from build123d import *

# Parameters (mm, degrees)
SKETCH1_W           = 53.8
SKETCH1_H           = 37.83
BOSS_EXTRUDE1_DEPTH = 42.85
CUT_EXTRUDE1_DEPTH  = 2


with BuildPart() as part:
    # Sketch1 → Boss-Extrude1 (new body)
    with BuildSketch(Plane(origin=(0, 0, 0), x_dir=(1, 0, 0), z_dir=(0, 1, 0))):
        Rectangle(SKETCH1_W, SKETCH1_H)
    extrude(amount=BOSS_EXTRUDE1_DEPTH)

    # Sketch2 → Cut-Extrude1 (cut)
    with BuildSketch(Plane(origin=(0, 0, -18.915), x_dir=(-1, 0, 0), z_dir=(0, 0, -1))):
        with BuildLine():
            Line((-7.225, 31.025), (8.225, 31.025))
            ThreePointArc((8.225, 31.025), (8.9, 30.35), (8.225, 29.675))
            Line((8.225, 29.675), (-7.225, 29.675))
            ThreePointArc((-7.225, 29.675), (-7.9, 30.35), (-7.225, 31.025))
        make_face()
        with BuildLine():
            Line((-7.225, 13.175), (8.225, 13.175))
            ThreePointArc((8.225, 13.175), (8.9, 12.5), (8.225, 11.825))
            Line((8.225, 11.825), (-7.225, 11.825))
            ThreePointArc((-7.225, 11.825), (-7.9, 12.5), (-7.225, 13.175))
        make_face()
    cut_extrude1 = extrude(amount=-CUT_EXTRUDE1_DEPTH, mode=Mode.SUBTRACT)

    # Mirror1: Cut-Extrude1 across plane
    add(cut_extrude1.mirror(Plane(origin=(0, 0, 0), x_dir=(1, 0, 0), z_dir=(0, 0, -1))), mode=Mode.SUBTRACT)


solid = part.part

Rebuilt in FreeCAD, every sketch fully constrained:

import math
import FreeCAD as App
import Part
import Sketcher

V = App.Vector

doc = App.newDocument("Part")
body = doc.addObject("PartDesign::Body", "Body")

sketch1 = body.newObject("Sketcher::SketchObject", "Sketch")
sketch1.AttachmentSupport = (doc.getObject("XZ_Plane"), [""])
sketch1.MapMode = "FlatFace"
sketch1.addGeometry(Part.LineSegment(V(-27, -19, 0), V(-27, 19, 0)), False)
sketch1.addGeometry(Part.LineSegment(V(-27, 19, 0), V(27, 19, 0)), False)
sketch1.addGeometry(Part.LineSegment(V(27, 19, 0), V(27, -19, 0)), False)
sketch1.addGeometry(Part.LineSegment(V(27, -19, 0), V(-27, -19, 0)), False)
sketch1.addConstraint(Sketcher.Constraint("Coincident", 0, 2, 1, 1))
sketch1.addConstraint(Sketcher.Constraint("Coincident", 1, 2, 2, 1))
sketch1.addConstraint(Sketcher.Constraint("Coincident", 2, 2, 3, 1))
sketch1.addConstraint(Sketcher.Constraint("Coincident", 3, 2, 0, 1))
sketch1.addConstraint(Sketcher.Constraint("Vertical", 0))
sketch1.addConstraint(Sketcher.Constraint("Horizontal", 1))
sketch1.addConstraint(Sketcher.Constraint("Vertical", 2))
sketch1.addConstraint(Sketcher.Constraint("Horizontal", 3))
sketch1.addConstraint(Sketcher.Constraint("Symmetric", 0, 2, 2, 2, -1, 1))
sketch1.addConstraint(Sketcher.Constraint("DistanceX", 1, 1, 1, 2, 53.8))
sketch1.addConstraint(Sketcher.Constraint("DistanceY", 0, 1, 0, 2, 37.83))
pad1 = body.newObject("PartDesign::Pad", "Pad")
pad1.Profile = sketch1
pad1.Length = 42.85
pad1.Reversed = True

sketch2 = body.newObject("Sketcher::SketchObject", "Sketch001")
sketch2.AttachmentSupport = (doc.getObject("XY_Plane"), [""])
sketch2.MapMode = "FlatFace"
sketch2.AttachmentOffset = App.Placement(V(0, 0, -18.915), App.Rotation())
sketch2.addGeometry(Part.LineSegment(V(-8.2, 31, 0), V(7.2, 31, 0)), False)
sketch2.addGeometry(Part.ArcOfCircle(Part.Circle(V(7.2, 30.4, 0), V(0, 0, 1), 0.7), math.radians(-90), math.radians(90)), False)
sketch2.addGeometry(Part.LineSegment(V(7.2, 29.7, 0), V(-8.2, 29.7, 0)), False)
sketch2.addGeometry(Part.ArcOfCircle(Part.Circle(V(-8.2, 30.4, 0), V(0, 0, 1), 0.7), math.radians(90), math.radians(270)), False)
sketch2.addGeometry(Part.LineSegment(V(-8.2, 13.2, 0), V(7.2, 13.2, 0)), False)
sketch2.addGeometry(Part.ArcOfCircle(Part.Circle(V(7.2, 12.5, 0), V(0, 0, 1), 0.7), math.radians(-90), math.radians(90)), False)
sketch2.addGeometry(Part.LineSegment(V(7.2, 11.8, 0), V(-8.2, 11.8, 0)), False)
sketch2.addGeometry(Part.ArcOfCircle(Part.Circle(V(-8.2, 12.5, 0), V(0, 0, 1), 0.7), math.radians(90), math.radians(270)), False)
sketch2.addConstraint(Sketcher.Constraint("Tangent", 0, 2, 1, 2))
sketch2.addConstraint(Sketcher.Constraint("Tangent", 1, 1, 2, 1))
sketch2.addConstraint(Sketcher.Constraint("Tangent", 2, 2, 3, 2))
sketch2.addConstraint(Sketcher.Constraint("Tangent", 3, 1, 0, 1))
sketch2.addConstraint(Sketcher.Constraint("Tangent", 4, 2, 5, 2))
sketch2.addConstraint(Sketcher.Constraint("Tangent", 5, 1, 6, 1))
sketch2.addConstraint(Sketcher.Constraint("Tangent", 6, 2, 7, 2))
sketch2.addConstraint(Sketcher.Constraint("Tangent", 7, 1, 4, 1))
sketch2.addConstraint(Sketcher.Constraint("Horizontal", 0))
sketch2.addConstraint(Sketcher.Constraint("Horizontal", 2))
sketch2.addConstraint(Sketcher.Constraint("Horizontal", 4))
sketch2.addConstraint(Sketcher.Constraint("Horizontal", 6))
sketch2.addConstraint(Sketcher.Constraint("Equal", 3, 5))
sketch2.addConstraint(Sketcher.Constraint("Vertical", 1, 3, 5, 3))
sketch2.addConstraint(Sketcher.Constraint("Vertical", 3, 3, 7, 3))
sketch2.addConstraint(Sketcher.Constraint("Radius", 1, 0.675))
sketch2.addConstraint(Sketcher.Constraint("DistanceX", 0, 1, 0, 2, 15.45))
sketch2.addConstraint(Sketcher.Constraint("DistanceY", -1, 1, 5, 3, 12.5))
sketch2.addConstraint(Sketcher.Constraint("DistanceY", 4, 2, 1, 1, 16.5))
sketch2.addConstraint(Sketcher.Constraint("DistanceX", -1, 1, 1, 3, 7.225))
pocket1 = body.newObject("PartDesign::Pocket", "Pocket")
pocket1.Profile = sketch2
pocket1.Length = 2
pocket1.Reversed = True
doc.recompute()

mirrored = body.newObject("PartDesign::Mirrored", "Mirrored")
mirrored.Originals = [pocket1]
mirrored.MirrorPlane = (doc.getObject("XY_Plane"), [""])
body.Tip = mirrored

doc.recompute()
